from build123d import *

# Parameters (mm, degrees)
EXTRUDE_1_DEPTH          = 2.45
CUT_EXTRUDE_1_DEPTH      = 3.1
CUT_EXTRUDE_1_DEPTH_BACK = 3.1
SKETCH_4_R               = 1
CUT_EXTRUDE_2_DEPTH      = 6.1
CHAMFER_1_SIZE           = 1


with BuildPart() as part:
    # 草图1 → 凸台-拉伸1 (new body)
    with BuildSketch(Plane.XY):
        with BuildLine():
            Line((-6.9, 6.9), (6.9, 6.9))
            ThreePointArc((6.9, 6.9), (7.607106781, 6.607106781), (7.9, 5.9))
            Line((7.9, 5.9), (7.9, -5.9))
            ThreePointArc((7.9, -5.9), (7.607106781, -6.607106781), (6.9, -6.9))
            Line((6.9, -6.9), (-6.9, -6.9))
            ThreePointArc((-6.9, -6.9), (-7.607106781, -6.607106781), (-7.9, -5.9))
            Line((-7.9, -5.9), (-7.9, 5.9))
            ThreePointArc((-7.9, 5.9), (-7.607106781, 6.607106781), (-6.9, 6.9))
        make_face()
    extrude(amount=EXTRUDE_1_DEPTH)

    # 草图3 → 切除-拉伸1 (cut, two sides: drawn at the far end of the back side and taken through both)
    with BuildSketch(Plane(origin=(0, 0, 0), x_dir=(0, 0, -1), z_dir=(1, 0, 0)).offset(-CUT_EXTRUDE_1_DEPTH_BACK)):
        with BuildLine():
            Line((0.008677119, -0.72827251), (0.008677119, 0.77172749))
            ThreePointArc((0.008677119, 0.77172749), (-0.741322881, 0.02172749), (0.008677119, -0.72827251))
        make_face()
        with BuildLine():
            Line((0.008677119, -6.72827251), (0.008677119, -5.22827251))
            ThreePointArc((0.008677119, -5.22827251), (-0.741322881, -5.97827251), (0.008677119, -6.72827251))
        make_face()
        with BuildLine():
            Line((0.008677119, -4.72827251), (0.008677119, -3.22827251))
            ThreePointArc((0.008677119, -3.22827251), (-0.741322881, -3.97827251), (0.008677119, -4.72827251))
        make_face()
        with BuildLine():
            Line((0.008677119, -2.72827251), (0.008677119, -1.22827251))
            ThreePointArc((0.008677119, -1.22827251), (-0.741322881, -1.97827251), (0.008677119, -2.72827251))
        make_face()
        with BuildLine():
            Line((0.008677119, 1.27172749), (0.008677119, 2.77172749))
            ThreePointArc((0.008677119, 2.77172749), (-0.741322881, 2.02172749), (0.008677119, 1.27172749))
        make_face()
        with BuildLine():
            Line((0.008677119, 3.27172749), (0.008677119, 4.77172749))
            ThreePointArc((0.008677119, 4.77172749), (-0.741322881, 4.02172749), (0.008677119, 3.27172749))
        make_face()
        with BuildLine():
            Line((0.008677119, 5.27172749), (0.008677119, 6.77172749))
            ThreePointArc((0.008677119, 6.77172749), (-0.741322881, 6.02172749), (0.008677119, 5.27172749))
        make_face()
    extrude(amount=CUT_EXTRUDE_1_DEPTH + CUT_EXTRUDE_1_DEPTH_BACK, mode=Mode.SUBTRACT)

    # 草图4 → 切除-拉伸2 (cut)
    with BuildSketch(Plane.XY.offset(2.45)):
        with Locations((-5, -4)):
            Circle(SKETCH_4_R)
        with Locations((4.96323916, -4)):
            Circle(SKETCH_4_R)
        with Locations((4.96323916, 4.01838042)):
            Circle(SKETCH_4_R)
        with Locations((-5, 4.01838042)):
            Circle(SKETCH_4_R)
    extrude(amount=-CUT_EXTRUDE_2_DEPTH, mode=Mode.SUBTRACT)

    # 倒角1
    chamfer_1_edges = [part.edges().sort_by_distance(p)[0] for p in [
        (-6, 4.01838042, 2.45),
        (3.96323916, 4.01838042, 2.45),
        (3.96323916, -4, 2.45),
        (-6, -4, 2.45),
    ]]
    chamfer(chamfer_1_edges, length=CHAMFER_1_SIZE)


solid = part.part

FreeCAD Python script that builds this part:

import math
import FreeCAD as App
import Part
import Sketcher
from FreeCAD import Vector


def edges_at(feature, points):
    """Names of the edges that pass closest to the given points."""
    edges = feature.Shape.Edges
    near = lambda p: min(range(len(edges)), key=lambda i: edges[i].distToShape(Part.Vertex(*p))[0])
    return sorted({f"Edge{near(p) + 1}" for p in points})

doc = App.newDocument("Part")
params = doc.addObject("Spreadsheet::Sheet", "Params")
for row, (alias, value) in enumerate([
    ("sketch1_radius", "1 mm"),
    ("sketch1_width", "13.8 mm"),
    ("sketch1_height", "11.8 mm"),
    ("pad1_length", "2.45 mm"),
    ("sketch2_radius", "0.75 mm"),
    ("pocket1_length", "3.1 mm"),
    ("pocket1_length2", "3.1 mm"),
    ("sketch3_diameter", "2 mm"),
    ("pocket2_length", "6.1 mm"),
    ("chamfer_size", "1 mm"),
], start=1):
    params.set(f"A{row}", alias)
    params.set(f"B{row}", "=" + value)
    params.setAlias(f"B{row}", alias)

body = doc.addObject("PartDesign::Body", "Body")

# Sketch on XY plane
sketch1 = doc.addObject("Sketcher::SketchObject", "Sketch")
body.addObject(sketch1)
sketch1.AttachmentSupport = (doc.XY_Plane, [""])
sketch1.MapMode = "FlatFace"
sketch1.addGeometry([
    Part.LineSegment(Vector(6.9, 6.9, 0), Vector(-6.9, 6.9, 0)),  # 0
    Part.ArcOfCircle(Part.Circle(Vector(-6.9, 5.9, 0), Vector(0, 0, 1), 1), math.radians(90), math.radians(180)),  # 1
    Part.LineSegment(Vector(-7.9, 5.9, 0), Vector(-7.9, -5.9, 0)),  # 2
    Part.ArcOfCircle(Part.Circle(Vector(-6.9, -5.9, 0), Vector(0, 0, 1), 1), math.radians(-180), math.radians(-90)),  # 3
    Part.LineSegment(Vector(-6.9, -6.9, 0), Vector(6.9, -6.9, 0)),  # 4
    Part.ArcOfCircle(Part.Circle(Vector(6.9, -5.9, 0), Vector(0, 0, 1), 1), math.radians(-90), math.radians(0)),  # 5
    Part.LineSegment(Vector(7.9, -5.9, 0), Vector(7.9, 5.9, 0)),  # 6
    Part.ArcOfCircle(Part.Circle(Vector(6.9, 5.9, 0), Vector(0, 0, 1), 1), math.radians(0), math.radians(90)),  # 7
], False)
sketch1.addConstraint([
    Sketcher.Constraint("Tangent", 0, 2, 1, 1),
    Sketcher.Constraint("Tangent", 1, 2, 2, 1),
    Sketcher.Constraint("Tangent", 2, 2, 3, 1),
    Sketcher.Constraint("Tangent", 3, 2, 4, 1),
    Sketcher.Constraint("Tangent", 4, 2, 5, 1),
    Sketcher.Constraint("Tangent", 5, 2, 6, 1),
    Sketcher.Constraint("Tangent", 6, 2, 7, 1),
    Sketcher.Constraint("Tangent", 7, 2, 0, 1),
    Sketcher.Constraint("Horizontal", 0),
    Sketcher.Constraint("Vertical", 2),
    Sketcher.Constraint("Horizontal", 4),
    Sketcher.Constraint("Vertical", 6),
    Sketcher.Constraint("Equal", 1, 3),
    Sketcher.Constraint("Equal", 3, 5),
    Sketcher.Constraint("Equal", 5, 7),
    Sketcher.Constraint("Symmetric", 1, 3, 5, 3, -1, 1),
    Sketcher.Constraint("Radius", 1, 1.0),
    Sketcher.Constraint("DistanceX", 0, 2, 0, 1, 13.8),
    Sketcher.Constraint("DistanceY", 2, 2, 2, 1, 11.8),
])
sketch1.setExpression("Constraints[16]", "Params.sketch1_radius")
sketch1.setExpression("Constraints[17]", "Params.sketch1_width")
sketch1.setExpression("Constraints[18]", "Params.sketch1_height")
pad1 = doc.addObject("PartDesign::Pad", "Pad")
body.addObject(pad1)
pad1.Profile = sketch1
pad1.setExpression("Length", "Params.pad1_length")

# Sketch on YZ plane
sketch2 = doc.addObject("Sketcher::SketchObject", "Sketch001")
body.addObject(sketch2)
sketch2.AttachmentSupport = (doc.YZ_Plane, [""])
sketch2.MapMode = "FlatFace"
sketch2.addGeometry([
    Part.LineSegment(Vector(-0.7, 0, 0), Vector(0.8, 0, 0)),  # 0
    Part.ArcOfCircle(Part.Circle(Vector(0, 0, 0), Vector(0, 0, 1), 0.8), math.radians(0), math.radians(180)),  # 1
    Part.LineSegment(Vector(-6.7, 0, 0), Vector(-5.2, 0, 0)),  # 2
    Part.ArcOfCircle(Part.Circle(Vector(-6, 0, 0), Vector(0, 0, 1), 0.8), math.radians(0), math.radians(180)),  # 3
    Part.LineSegment(Vector(-4.7, 0, 0), Vector(-3.2, 0, 0)),  # 4
    Part.ArcOfCircle(Part.Circle(Vector(-4, 0, 0), Vector(0, 0, 1), 0.8), math.radians(0), math.radians(180)),  # 5
    Part.LineSegment(Vector(-2.7, 0, 0), Vector(-1.2, 0, 0)),  # 6
    Part.ArcOfCircle(Part.Circle(Vector(-2, 0, 0), Vector(0, 0, 1), 0.8), math.radians(0), math.radians(180)),  # 7
    Part.LineSegment(Vector(1.3, 0, 0), Vector(2.8, 0, 0)),  # 8
    Part.ArcOfCircle(Part.Circle(Vector(2, 0, 0), Vector(0, 0, 1), 0.8), math.radians(0), math.radians(180)),  # 9
    Part.LineSegment(Vector(3.3, 0, 0), Vector(4.8, 0, 0)),  # 10
    Part.ArcOfCircle(Part.Circle(Vector(4, 0, 0), Vector(0, 0, 1), 0.8), math.radians(0), math.radians(180)),  # 11
    Part.LineSegment(Vector(5.3, 0, 0), Vector(6.8, 0, 0)),  # 12
    Part.ArcOfCircle(Part.Circle(Vector(6, 0, 0), Vector(0, 0, 1), 0.8), math.radians(0), math.radians(180)),  # 13
], False)
sketch2.addConstraint([
    Sketcher.Constraint("Coincident", 0, 1, 1, 2),
    Sketcher.Constraint("Coincident", 1, 1, 0, 2),
    Sketcher.Constraint("Coincident", 2, 1, 3, 2),
    Sketcher.Constraint("Coincident", 3, 1, 2, 2),
    Sketcher.Constraint("Coincident", 4, 1, 5, 2),
    Sketcher.Constraint("Coincident", 5, 1, 4, 2),
    Sketcher.Constraint("Coincident", 6, 1, 7, 2),
    Sketcher.Constraint("Coincident", 7, 1, 6, 2),
    Sketcher.Constraint("Coincident", 8, 1, 9, 2),
    Sketcher.Constraint("Coincident", 9, 1, 8, 2),
    Sketcher.Constraint("Coincident", 10, 1, 11, 2),
    Sketcher.Constraint("Coincident", 11, 1, 10, 2),
    Sketcher.Constraint("Coincident", 12, 1, 13, 2),
    Sketcher.Constraint("Coincident", 13, 1, 12, 2),
    Sketcher.Constraint("Horizontal", 0),
    Sketcher.Constraint("Horizontal", 2),
    Sketcher.Constraint("Horizontal", 4),
    Sketcher.Constraint("Horizontal", 6),
    Sketcher.Constraint("Horizontal", 8),
    Sketcher.Constraint("Horizontal", 10),
    Sketcher.Constraint("Horizontal", 12),
    Sketcher.Constraint("Equal", 1, 3),
    Sketcher.Constraint("Equal", 3, 5),
    Sketcher.Constraint("Equal", 5, 7),
    Sketcher.Constraint("Equal", 7, 9),
    Sketcher.Constraint("Equal", 9, 11),
    Sketcher.Constraint("Equal", 11, 13),
    Sketcher.Constraint("Horizontal", 1, 3, 3, 3),
    Sketcher.Constraint("Horizontal", 3, 3, 5, 3),
    Sketcher.Constraint("Horizontal", 5, 3, 7, 3),
    Sketcher.Constraint("Horizontal", 7, 3, 9, 3),
    Sketcher.Constraint("Horizontal", 9, 3, 11, 3),
    Sketcher.Constraint("Horizontal", 11, 3, 13, 3),
    Sketcher.Constraint("Horizontal", 13, 3, 0, 1),
    Sketcher.Constraint("Horizontal", 1, 1, 2, 1),
    Sketcher.Constraint("Horizontal", 3, 1, 4, 1),
    Sketcher.Constraint("Horizontal", 5, 1, 6, 1),
    Sketcher.Constraint("Horizontal", 7, 1, 8, 1),
    Sketcher.Constraint("Horizontal", 9, 1, 10, 1),
    Sketcher.Constraint("Horizontal", 11, 1, 12, 1),
    Sketcher.Constraint("Radius", 1, 0.75),
    Sketcher.Constraint("DistanceX", 3, 3, 1, 3, 6.0),
    Sketcher.Constraint("DistanceX", 3, 3, 5, 3, 2.0),
    Sketcher.Constraint("DistanceX", 7, 3, 1, 3, 2.0),
    Sketcher.Constraint("DistanceX", 1, 3, 9, 3, 2.0),
    Sketcher.Constraint("DistanceX", 9, 3, 11, 3, 2.0),
    Sketcher.Constraint("DistanceX", 11, 3, 13, 3, 2.0),
    Sketcher.Constraint("DistanceX", -1, 1, 1, 3, 0.021727),
    Sketcher.Constraint("DistanceY", 1, 3, -1, 1, 0.008677),
])
sketch2.setExpression("Constraints[40]", "Params.sketch2_radius")
pocket1 = doc.addObject("PartDesign::Pocket", "Pocket")
body.addObject(pocket1)
pocket1.Profile = sketch2
pocket1.Type = "TwoLengths"
pocket1.setExpression("Length", "Params.pocket1_length")
pocket1.setExpression("Length2", "Params.pocket1_length2")
pocket1.Reversed = True

# Sketch on XY plane
sketch3 = doc.addObject("Sketcher::SketchObject", "Sketch002")
body.addObject(sketch3)
sketch3.AttachmentSupport = (doc.XY_Plane, [""])
sketch3.MapMode = "FlatFace"
sketch3.AttachmentOffset = App.Placement(Vector(0, 0, 2.45), App.Rotation())
sketch3.addGeometry([
    Part.Circle(Vector(-5, -4, 0), Vector(0, 0, 1), 1),
    Part.Circle(Vector(5, -4, 0), Vector(0, 0, 1), 1),
    Part.Circle(Vector(5, 4, 0), Vector(0, 0, 1), 1),
    Part.Circle(Vector(-5, 4, 0), Vector(0, 0, 1), 1),
], False)
sketch3.addConstraint([
    Sketcher.Constraint("Equal", 0, 1),
    Sketcher.Constraint("Equal", 1, 2),
    Sketcher.Constraint("Equal", 2, 3),
    Sketcher.Constraint("Horizontal", 0, 3, 1, 3),
    Sketcher.Constraint("Horizontal", 2, 3, 3, 3),
    Sketcher.Constraint("Vertical", 1, 3, 2, 3),
    Sketcher.Constraint("Vertical", 0, 3, 3, 3),
    Sketcher.Constraint("Diameter", 0, 2.0),
    Sketcher.Constraint("DistanceX", 0, 3, -1, 1, 5.0),
    Sketcher.Constraint("DistanceY", 0, 3, -1, 1, 4.0),
    Sketcher.Constraint("DistanceX", -1, 1, 1, 3, 4.963239),
    Sketcher.Constraint("DistanceY", -1, 1, 2, 3, 4.01838),
])
sketch3.setExpression("Constraints[7]", "Params.sketch3_diameter")
pocket2 = doc.addObject("PartDesign::Pocket", "Pocket001")
body.addObject(pocket2)
pocket2.Profile = sketch3
pocket2.setExpression("Length", "Params.pocket2_length")
doc.recompute()

chamfer = doc.addObject("PartDesign::Chamfer", "Chamfer")
body.addObject(chamfer)
chamfer.Base = (pocket2, edges_at(pocket2, [
    (-6, 4.018, 2.45),
    (3.963, 4.018, 2.45),
    (3.963, -4, 2.45),
    (-6, -4, 2.45),
]))
chamfer.setExpression("Size", "Params.chamfer_size")

doc.recompute()
